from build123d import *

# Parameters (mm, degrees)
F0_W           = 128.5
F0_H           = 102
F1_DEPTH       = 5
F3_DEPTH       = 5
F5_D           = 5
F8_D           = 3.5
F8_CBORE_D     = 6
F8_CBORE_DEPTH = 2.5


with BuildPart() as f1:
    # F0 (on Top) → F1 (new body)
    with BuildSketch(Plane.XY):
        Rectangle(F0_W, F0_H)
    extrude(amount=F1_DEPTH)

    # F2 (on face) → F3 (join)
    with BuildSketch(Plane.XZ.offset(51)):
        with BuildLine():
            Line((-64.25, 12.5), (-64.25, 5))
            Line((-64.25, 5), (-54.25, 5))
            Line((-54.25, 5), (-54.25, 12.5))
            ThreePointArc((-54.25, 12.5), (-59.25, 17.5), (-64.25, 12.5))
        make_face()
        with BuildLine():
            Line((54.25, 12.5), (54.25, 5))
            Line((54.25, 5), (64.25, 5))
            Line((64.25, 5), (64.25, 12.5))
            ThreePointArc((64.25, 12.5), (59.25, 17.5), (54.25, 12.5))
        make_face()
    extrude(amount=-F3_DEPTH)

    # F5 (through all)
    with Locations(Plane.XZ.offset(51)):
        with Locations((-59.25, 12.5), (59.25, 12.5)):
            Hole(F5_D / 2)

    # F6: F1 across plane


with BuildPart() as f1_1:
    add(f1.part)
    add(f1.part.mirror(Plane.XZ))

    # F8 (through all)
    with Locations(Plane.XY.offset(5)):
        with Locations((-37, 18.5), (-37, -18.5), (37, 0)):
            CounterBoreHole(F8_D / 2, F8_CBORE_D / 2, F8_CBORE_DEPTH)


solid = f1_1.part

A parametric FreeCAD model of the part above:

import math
import FreeCAD as App
import Part
import Sketcher
from FreeCAD import Vector


def add_polygon(sketch, points):
    """Adds a closed chain of lines whose ends are joined by coincident constraints."""
    first, n = sketch.GeometryCount, len(points)
    for a, b in zip(points, points[1:] + points[:1]):
        sketch.addGeometry(Part.LineSegment(App.Vector(*a, 0), App.Vector(*b, 0)), False)
    for i in range(n):
        sketch.addConstraint(Sketcher.Constraint("Coincident", first + i, 2, first + (i + 1) % n, 1))

doc = App.newDocument("Part")
body = doc.addObject("PartDesign::Body", "Body")

sketch1 = body.newObject("Sketcher::SketchObject", "Sketch")
sketch1.AttachmentSupport = (doc.getObject("XY_Plane"), [""])
sketch1.MapMode = "FlatFace"
add_polygon(sketch1, [(-64, 51), (-64, -51), (64, -51), (64, 51)])
sketch1.addConstraint([
    Sketcher.Constraint("Vertical", 0),
    Sketcher.Constraint("Horizontal", 1),
    Sketcher.Constraint("Vertical", 2),
    Sketcher.Constraint("Horizontal", 3),
    Sketcher.Constraint("Symmetric", 0, 2, 2, 2, -1, 1),
    Sketcher.Constraint("DistanceY", 0, 2, 0, 1, 102.0),
    Sketcher.Constraint("DistanceX", 1, 1, 1, 2, 128.5),
])
pad1 = body.newObject("PartDesign::Pad", "Pad")
pad1.Profile = sketch1
pad1.Length = 5

sketch2 = body.newObject("Sketcher::SketchObject", "Sketch001")
sketch2.AttachmentSupport = (doc.getObject("XZ_Plane"), [""])
sketch2.MapMode = "FlatFace"
sketch2.AttachmentOffset = App.Placement(Vector(0, 0, 51), App.Rotation())
sketch2.addGeometry([
    Part.LineSegment(Vector(-64, 12, 0), Vector(-64, 5, 0)),
    Part.LineSegment(Vector(-64, 5, 0), Vector(-54, 5, 0)),
    Part.LineSegment(Vector(-54, 5, 0), Vector(-54, 12, 0)),
    Part.ArcOfCircle(Part.Circle(Vector(-59, 12, 0), Vector(0, 0, 1), 5), math.radians(0), math.radians(180)),
    Part.LineSegment(Vector(54, 12, 0), Vector(54, 5, 0)),
    Part.LineSegment(Vector(54, 5, 0), Vector(64, 5, 0)),
    Part.LineSegment(Vector(64, 5, 0), Vector(64, 12, 0)),
    Part.ArcOfCircle(Part.Circle(Vector(59, 12, 0), Vector(0, 0, 1), 5), math.radians(0), math.radians(180)),
], False)
sketch2.addConstraint([
    Sketcher.Constraint("Coincident", 0, 2, 1, 1),
    Sketcher.Constraint("Coincident", 1, 2, 2, 1),
    Sketcher.Constraint("Tangent", 2, 2, 3, 1),
    Sketcher.Constraint("Tangent", 3, 2, 0, 1),
    Sketcher.Constraint("Coincident", 4, 2, 5, 1),
    Sketcher.Constraint("Coincident", 5, 2, 6, 1),
    Sketcher.Constraint("Tangent", 6, 2, 7, 1),
    Sketcher.Constraint("Tangent", 7, 2, 4, 1),
    Sketcher.Constraint("Vertical", 0),
    Sketcher.Constraint("Horizontal", 1),
    Sketcher.Constraint("Vertical", 2),
    Sketcher.Constraint("Vertical", 4),
    Sketcher.Constraint("Horizontal", 5),
    Sketcher.Constraint("Vertical", 6),
    Sketcher.Constraint("Equal", 3, 7),
    Sketcher.Constraint("Symmetric", 3, 3, 7, 3, -2),
    Sketcher.Constraint("Horizontal", 1, 2, 4, 2),
    Sketcher.Constraint("Radius", 3, 5.0),
    Sketcher.Constraint("DistanceY", 0, 2, 0, 1, 7.5),
    Sketcher.Constraint("DistanceY", -1, 1, 0, 2, 5.0),
    Sketcher.Constraint("DistanceX", 3, 3, 7, 3, 118.5),
])
pad2 = body.newObject("PartDesign::Pad", "Pad001")
pad2.Profile = sketch2
pad2.Length = 5
pad2.Reversed = True

sketch3 = body.newObject("Sketcher::SketchObject", "Sketch002")
sketch3.AttachmentSupport = (doc.getObject("XZ_Plane"), [""])
sketch3.MapMode = "FlatFace"
sketch3.AttachmentOffset = App.Placement(Vector(0, 0, 51), App.Rotation())
sketch3.addGeometry([
    Part.Circle(Vector(-59.2, 12.5, 0), Vector(0, 0, 1), 2.5),
    Part.Circle(Vector(59.2, 12.5, 0), Vector(0, 0, 1), 2.5),
], False)
sketch3.addConstraint([
    Sketcher.Constraint("Equal", 0, 1),
    Sketcher.Constraint("Symmetric", 0, 3, 1, 3, -2),
    Sketcher.Constraint("Diameter", 0, 5.0),
    Sketcher.Constraint("DistanceY", -1, 1, 0, 3, 12.5),
    Sketcher.Constraint("DistanceX", 0, 3, 1, 3, 118.5),
])
doc.recompute()
hole = body.newObject("PartDesign::Hole", "Hole")
hole.Profile = sketch3
hole.ThreadType = "None"
hole.Diameter = 5
hole.DepthType = "ThroughAll"
body2 = doc.addObject("PartDesign::Body", "Body001")
doc.recompute()

body2.BaseFeature = body
doc.recompute()

mirroring = doc.addObject("Part::Mirroring", "Mirroring")
mirroring.Source = body
mirroring.Base = Vector(0, 0, 0)
mirroring.Normal = Vector(0, -1, 0)
body3 = doc.addObject("PartDesign::Body", "Body002")
body3.BaseFeature = mirroring
boolean = body2.newObject("PartDesign::Boolean", "Boolean")
boolean.Type = "Fuse"
boolean.addObjects([body3])
doc.recompute()

sketch4 = body2.newObject("Sketcher::SketchObject", "Sketch003")
sketch4.AttachmentSupport = (doc.getObject("XY_Plane001"), [""])
sketch4.MapMode = "FlatFace"
sketch4.AttachmentOffset = App.Placement(Vector(0, 0, 5), App.Rotation())
sketch4.addGeometry([
    Part.Circle(Vector(-37, 18.5, 0), Vector(0, 0, 1), 1.8),
    Part.Circle(Vector(-37, -18.5, 0), Vector(0, 0, 1), 1.8),
    Part.Circle(Vector(37, 0, 0), Vector(0, 0, 1), 1.8),
], False)
sketch4.addConstraint([
    Sketcher.Constraint("Equal", 0, 1),
    Sketcher.Constraint("Equal", 1, 2),
    Sketcher.Constraint("Symmetric", 0, 3, 1, 3, -1),
    Sketcher.Constraint("PointOnObject", 2, 3, -1),
    Sketcher.Constraint("Diameter", 0, 3.5),
    Sketcher.Constraint("DistanceX", 0, 3, -1, 1, 37.0),
    Sketcher.Constraint("DistanceX", -1, 1, 2, 3, 37.0),
    Sketcher.Constraint("DistanceY", 1, 3, 0, 3, 37.0),
])
doc.recompute()
hole2 = body2.newObject("PartDesign::Hole", "Hole001")
hole2.Profile = sketch4
hole2.ThreadType = "None"
hole2.Diameter = 3.5
hole2.DepthType = "ThroughAll"
hole2.HoleCutType = "Counterbore"
hole2.HoleCutDiameter = 6
hole2.HoleCutDepth = 2.5
mirroring.Visibility = False

doc.recompute()
